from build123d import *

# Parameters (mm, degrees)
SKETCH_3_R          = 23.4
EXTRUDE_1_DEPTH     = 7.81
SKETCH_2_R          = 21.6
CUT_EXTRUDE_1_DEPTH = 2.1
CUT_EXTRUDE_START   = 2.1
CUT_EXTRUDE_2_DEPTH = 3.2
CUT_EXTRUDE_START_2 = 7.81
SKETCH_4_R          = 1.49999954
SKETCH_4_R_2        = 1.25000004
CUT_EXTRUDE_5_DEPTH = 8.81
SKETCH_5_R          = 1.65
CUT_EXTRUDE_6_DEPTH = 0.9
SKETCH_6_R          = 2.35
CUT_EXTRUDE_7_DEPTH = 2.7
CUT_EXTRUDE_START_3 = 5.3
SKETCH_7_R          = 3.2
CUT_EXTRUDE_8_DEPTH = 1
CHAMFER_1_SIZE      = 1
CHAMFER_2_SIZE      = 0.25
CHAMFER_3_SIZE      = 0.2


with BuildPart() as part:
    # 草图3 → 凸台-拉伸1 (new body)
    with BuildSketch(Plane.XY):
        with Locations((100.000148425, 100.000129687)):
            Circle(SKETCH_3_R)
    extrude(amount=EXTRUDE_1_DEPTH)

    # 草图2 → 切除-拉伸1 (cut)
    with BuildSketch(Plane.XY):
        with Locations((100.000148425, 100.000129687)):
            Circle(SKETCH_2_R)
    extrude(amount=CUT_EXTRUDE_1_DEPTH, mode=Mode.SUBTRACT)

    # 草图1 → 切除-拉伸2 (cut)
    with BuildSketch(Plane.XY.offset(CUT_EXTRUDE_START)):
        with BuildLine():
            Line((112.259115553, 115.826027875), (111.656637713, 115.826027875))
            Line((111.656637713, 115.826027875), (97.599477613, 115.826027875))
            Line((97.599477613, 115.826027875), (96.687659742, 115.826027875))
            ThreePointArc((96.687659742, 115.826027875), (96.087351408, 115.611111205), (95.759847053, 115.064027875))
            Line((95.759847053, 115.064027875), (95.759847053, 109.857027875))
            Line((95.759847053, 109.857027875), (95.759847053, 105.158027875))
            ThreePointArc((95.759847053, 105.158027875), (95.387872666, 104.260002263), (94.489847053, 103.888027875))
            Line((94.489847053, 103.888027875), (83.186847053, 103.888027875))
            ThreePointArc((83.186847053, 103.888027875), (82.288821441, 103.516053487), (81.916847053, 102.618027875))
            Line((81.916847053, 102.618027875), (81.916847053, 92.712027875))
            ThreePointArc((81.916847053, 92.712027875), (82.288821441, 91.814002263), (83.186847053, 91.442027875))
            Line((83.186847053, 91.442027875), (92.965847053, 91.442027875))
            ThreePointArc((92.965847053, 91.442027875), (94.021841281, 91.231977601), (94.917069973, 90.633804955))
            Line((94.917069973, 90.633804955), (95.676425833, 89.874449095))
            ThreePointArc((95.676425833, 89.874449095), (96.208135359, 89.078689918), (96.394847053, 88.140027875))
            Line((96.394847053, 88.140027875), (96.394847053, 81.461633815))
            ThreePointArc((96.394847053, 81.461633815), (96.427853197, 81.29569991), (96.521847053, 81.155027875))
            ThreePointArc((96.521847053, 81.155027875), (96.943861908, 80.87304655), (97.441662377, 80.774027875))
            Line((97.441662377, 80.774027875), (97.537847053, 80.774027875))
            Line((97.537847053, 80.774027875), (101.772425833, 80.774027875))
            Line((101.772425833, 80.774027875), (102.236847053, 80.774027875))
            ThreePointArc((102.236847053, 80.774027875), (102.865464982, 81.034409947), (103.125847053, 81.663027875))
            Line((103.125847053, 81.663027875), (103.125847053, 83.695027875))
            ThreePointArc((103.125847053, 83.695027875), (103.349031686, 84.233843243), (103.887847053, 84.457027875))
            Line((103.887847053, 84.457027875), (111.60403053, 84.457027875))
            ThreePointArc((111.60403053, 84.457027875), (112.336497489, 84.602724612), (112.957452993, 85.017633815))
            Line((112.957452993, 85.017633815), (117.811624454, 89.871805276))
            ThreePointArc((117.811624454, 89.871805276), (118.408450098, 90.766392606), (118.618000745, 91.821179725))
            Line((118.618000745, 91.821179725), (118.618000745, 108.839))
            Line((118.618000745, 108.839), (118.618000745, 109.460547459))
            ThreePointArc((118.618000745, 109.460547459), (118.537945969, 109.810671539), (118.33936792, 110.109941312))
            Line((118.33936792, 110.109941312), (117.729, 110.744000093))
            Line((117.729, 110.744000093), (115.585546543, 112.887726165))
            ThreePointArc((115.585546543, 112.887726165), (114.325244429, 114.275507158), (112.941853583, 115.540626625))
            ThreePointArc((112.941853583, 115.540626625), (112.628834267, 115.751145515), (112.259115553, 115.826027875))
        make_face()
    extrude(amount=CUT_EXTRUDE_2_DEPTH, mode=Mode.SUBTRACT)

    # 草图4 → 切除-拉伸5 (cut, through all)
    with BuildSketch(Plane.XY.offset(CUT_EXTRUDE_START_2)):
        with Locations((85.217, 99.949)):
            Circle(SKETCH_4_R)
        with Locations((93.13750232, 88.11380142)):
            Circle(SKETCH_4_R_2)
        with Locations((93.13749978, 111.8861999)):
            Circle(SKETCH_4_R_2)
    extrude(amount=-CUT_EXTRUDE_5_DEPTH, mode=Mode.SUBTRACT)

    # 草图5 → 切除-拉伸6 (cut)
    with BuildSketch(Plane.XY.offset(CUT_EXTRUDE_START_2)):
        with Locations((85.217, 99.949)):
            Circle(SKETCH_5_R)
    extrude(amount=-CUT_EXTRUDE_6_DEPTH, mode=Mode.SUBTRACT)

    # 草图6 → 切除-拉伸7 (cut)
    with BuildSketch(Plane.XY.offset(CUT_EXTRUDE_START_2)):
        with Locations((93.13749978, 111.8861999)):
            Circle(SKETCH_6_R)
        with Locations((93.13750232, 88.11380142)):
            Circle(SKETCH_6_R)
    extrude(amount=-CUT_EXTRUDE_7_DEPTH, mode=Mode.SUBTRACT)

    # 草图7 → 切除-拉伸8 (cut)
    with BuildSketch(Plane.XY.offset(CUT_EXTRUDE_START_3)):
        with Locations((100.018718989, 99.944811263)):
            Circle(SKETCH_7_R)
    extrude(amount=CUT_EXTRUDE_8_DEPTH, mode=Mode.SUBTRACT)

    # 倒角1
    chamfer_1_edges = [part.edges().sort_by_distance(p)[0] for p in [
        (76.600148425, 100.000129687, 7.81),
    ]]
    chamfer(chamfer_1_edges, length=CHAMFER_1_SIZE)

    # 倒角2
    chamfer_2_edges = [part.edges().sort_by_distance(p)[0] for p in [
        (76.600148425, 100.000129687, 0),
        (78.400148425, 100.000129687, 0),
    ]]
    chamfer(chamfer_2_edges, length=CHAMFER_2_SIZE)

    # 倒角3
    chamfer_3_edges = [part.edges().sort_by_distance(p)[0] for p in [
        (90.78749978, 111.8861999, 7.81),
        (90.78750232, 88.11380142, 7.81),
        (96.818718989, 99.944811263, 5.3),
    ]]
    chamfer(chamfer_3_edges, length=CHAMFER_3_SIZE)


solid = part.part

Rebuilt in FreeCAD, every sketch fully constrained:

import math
import FreeCAD as App
import Part
import Sketcher
Q = App.Units.Quantity


def edges_at(feature, points):
    """Names of the edges that pass closest to the given points."""
    edges = feature.Shape.Edges
    near = lambda p: min(range(len(edges)), key=lambda i: edges[i].distToShape(Part.Vertex(*p))[0])
    return sorted({f"Edge{near(p) + 1}" for p in points})

doc = App.newDocument("Part")
body = doc.addObject("PartDesign::Body", "Body")

# Sketch on XY plane
sketch1 = body.newObject("Sketcher::SketchObject", "Sketch")
sketch1.AttachmentSupport = (doc.getObject("XY_Plane"), [""])
sketch1.MapMode = "FlatFace"
sketch1.addGeometry(Part.Circle(App.Vector(100, 100, 0), App.Vector(0, 0, 1), 23), False)
sketch1.addConstraint([
    Sketcher.Constraint("Diameter", 0, Q("46.8 mm")),
    Sketcher.Constraint("DistanceX", -1, 1, 0, 3, Q("100.000148 mm")),
    Sketcher.Constraint("DistanceY", -1, 1, 0, 3, Q("100.00013 mm")),
])
pad1 = body.newObject("PartDesign::Pad", "Pad")
pad1.Profile = sketch1
pad1.Length = 7.81

# Sketch on XY plane
sketch2 = body.newObject("Sketcher::SketchObject", "Sketch001")
sketch2.AttachmentSupport = (doc.getObject("XY_Plane"), [""])
sketch2.MapMode = "FlatFace"
sketch2.addGeometry(Part.Circle(App.Vector(100, 100, 0), App.Vector(0, 0, 1), 22), False)
sketch2.addConstraint([
    Sketcher.Constraint("Diameter", 0, Q("43.2 mm")),
    Sketcher.Constraint("DistanceX", -1, 1, 0, 3, Q("100.000148 mm")),
    Sketcher.Constraint("DistanceY", -1, 1, 0, 3, Q("100.00013 mm")),
])
pocket1 = body.newObject("PartDesign::Pocket", "Pocket")
pocket1.Profile = sketch2
pocket1.Length = 2.1
pocket1.Reversed = True

# Sketch on XY plane
sketch3 = body.newObject("Sketcher::SketchObject", "Sketch002")
sketch3.AttachmentSupport = (doc.getObject("XY_Plane"), [""])
sketch3.MapMode = "FlatFace"
sketch3.AttachmentOffset = App.Placement(App.Vector(0, 0, 2.1), App.Rotation())
sketch3.addGeometry([
    Part.LineSegment(App.Vector(112.26, 115.83, 0), App.Vector(96.69, 115.83, 0)),  # 0
    Part.ArcOfCircle(Part.Circle(App.Vector(96.69, 114.88, 0), App.Vector(0, 0, 1), 0.95), math.radians(90), math.radians(169)),  # 1
    Part.LineSegment(App.Vector(95.76, 115.06, 0), App.Vector(95.76, 105.16, 0)),  # 2
    Part.ArcOfCircle(Part.Circle(App.Vector(94.49, 105.16, 0), App.Vector(0, 0, 1), 1.27), math.radians(-90), math.radians(0)),  # 3
    Part.LineSegment(App.Vector(94.49, 103.89, 0), App.Vector(83.19, 103.89, 0)),  # 4
    Part.ArcOfCircle(Part.Circle(App.Vector(83.19, 102.62, 0), App.Vector(0, 0, 1), 1.27), math.radians(90), math.radians(180)),  # 5
    Part.LineSegment(App.Vector(81.92, 102.62, 0), App.Vector(81.92, 92.71, 0)),  # 6
    Part.ArcOfCircle(Part.Circle(App.Vector(83.19, 92.71, 0), App.Vector(0, 0, 1), 1.27), math.radians(180), math.radians(270)),  # 7
    Part.LineSegment(App.Vector(83.19, 91.44, 0), App.Vector(92.97, 91.44, 0)),  # 8
    Part.ArcOfCircle(Part.Circle(App.Vector(92.97, 88.68, 0), App.Vector(0, 0, 1), 2.76), math.radians(45), math.radians(90)),  # 9
    Part.LineSegment(App.Vector(94.92, 90.63, 0), App.Vector(95.68, 89.87, 0)),  # 10
    Part.ArcOfCircle(Part.Circle(App.Vector(93.94, 88.14, 0), App.Vector(0, 0, 1), 2.45), math.radians(0), math.radians(45)),  # 11
    Part.LineSegment(App.Vector(96.39, 88.14, 0), App.Vector(96.39, 81.46, 0)),  # 12
    Part.ArcOfCircle(Part.Circle(App.Vector(96.83, 81.46, 0), App.Vector(0, 0, 1), 0.43), math.radians(180), math.radians(225)),  # 13
    Part.ArcOfCircle(Part.Circle(App.Vector(97.44, 82.07, 0), App.Vector(0, 0, 1), 1.3), math.radians(-135), math.radians(-90)),  # 14
    Part.LineSegment(App.Vector(97.44, 80.77, 0), App.Vector(102.24, 80.77, 0)),  # 15
    Part.ArcOfCircle(Part.Circle(App.Vector(102.24, 81.66, 0), App.Vector(0, 0, 1), 0.89), math.radians(-90), math.radians(0)),  # 16
    Part.LineSegment(App.Vector(103.13, 81.66, 0), App.Vector(103.13, 83.7, 0)),  # 17
    Part.ArcOfCircle(Part.Circle(App.Vector(103.89, 83.7, 0), App.Vector(0, 0, 1), 0.76), math.radians(90), math.radians(180)),  # 18
    Part.LineSegment(App.Vector(103.89, 84.46, 0), App.Vector(111.6, 84.46, 0)),  # 19
    Part.ArcOfCircle(Part.Circle(App.Vector(111.6, 86.37, 0), App.Vector(0, 0, 1), 1.91), math.radians(-90), math.radians(-45)),  # 20
    Part.LineSegment(App.Vector(112.96, 85.02, 0), App.Vector(117.81, 89.87, 0)),  # 21
    Part.ArcOfCircle(Part.Circle(App.Vector(115.86, 91.82, 0), App.Vector(0, 0, 1), 2.76), math.radians(-45), math.radians(0)),  # 22
    Part.LineSegment(App.Vector(118.62, 91.82, 0), App.Vector(118.62, 109.46, 0)),  # 23
    Part.ArcOfCircle(Part.Circle(App.Vector(117.62, 109.42, 0), App.Vector(0, 0, 1), 1), math.radians(3), math.radians(44)),  # 24
    Part.LineSegment(App.Vector(118.34, 110.11, 0), App.Vector(117.73, 110.74, 0)),  # 25
    Part.LineSegment(App.Vector(117.73, 110.74, 0), App.Vector(115.59, 112.89, 0)),  # 26
    Part.ArcOfCircle(Part.Circle(App.Vector(100, 100, 0), App.Vector(0, 0, 1), 20.22), math.radians(39.59), math.radians(50.21)),  # 27
    Part.ArcOfCircle(Part.Circle(App.Vector(112.26, 114.86, 0), App.Vector(0, 0, 1), 0.97), math.radians(45), math.radians(90)),  # 28
], False)
sketch3.addConstraint([
    Sketcher.Constraint("Tangent", 0, 2, 1, 1),
    Sketcher.Constraint("Coincident", 1, 2, 2, 1),
    Sketcher.Constraint("Tangent", 2, 2, 3, 2),
    Sketcher.Constraint("Tangent", 3, 1, 4, 1),
    Sketcher.Constraint("Tangent", 4, 2, 5, 1),
    Sketcher.Constraint("Tangent", 5, 2, 6, 1),
    Sketcher.Constraint("Tangent", 6, 2, 7, 1),
    Sketcher.Constraint("Tangent", 7, 2, 8, 1),
    Sketcher.Constraint("Tangent", 8, 2, 9, 2),
    Sketcher.Constraint("Tangent", 9, 1, 10, 1),
    Sketcher.Constraint("Tangent", 10, 2, 11, 2),
    Sketcher.Constraint("Tangent", 11, 1, 12, 1),
    Sketcher.Constraint("Tangent", 12, 2, 13, 1),
    Sketcher.Constraint("Tangent", 13, 2, 14, 1),
    Sketcher.Constraint("Tangent", 14, 2, 15, 1),
    Sketcher.Constraint("Tangent", 15, 2, 16, 1),
    Sketcher.Constraint("Tangent", 16, 2, 17, 1),
    Sketcher.Constraint("Tangent", 17, 2, 18, 2),
    Sketcher.Constraint("Tangent", 18, 1, 19, 1),
    Sketcher.Constraint("Tangent", 19, 2, 20, 1),
    Sketcher.Constraint("Tangent", 20, 2, 21, 1),
    Sketcher.Constraint("Coincident", 21, 2, 22, 1),
    Sketcher.Constraint("Tangent", 22, 2, 23, 1),
    Sketcher.Constraint("Coincident", 23, 2, 24, 1),
    Sketcher.Constraint("Tangent", 24, 2, 25, 1),
    Sketcher.Constraint("Coincident", 25, 2, 26, 1),
    Sketcher.Constraint("Coincident", 26, 2, 27, 1),
    Sketcher.Constraint("Coincident", 27, 2, 28, 1),
    Sketcher.Constraint("Coincident", 28, 2, 0, 1),
    Sketcher.Constraint("Horizontal", 0),
    Sketcher.Constraint("Vertical", 2),
    Sketcher.Constraint("Horizontal", 4),
    Sketcher.Constraint("Vertical", 6),
    Sketcher.Constraint("Horizontal", 8),
    Sketcher.Constraint("Vertical", 12),
    Sketcher.Constraint("Horizontal", 15),
    Sketcher.Constraint("Vertical", 17),
    Sketcher.Constraint("Horizontal", 19),
    Sketcher.Constraint("Vertical", 23),
    Sketcher.Constraint("Equal", 3, 5),
    Sketcher.Constraint("Equal", 5, 7),
    Sketcher.Constraint("Equal", 9, 22),
    Sketcher.Constraint("Perpendicular", 10, 21),
    Sketcher.Constraint("Equal", 2, 6),
    Sketcher.Constraint("Angle", 10, Q("-45 deg")),
    Sketcher.Constraint("Radius", 3, Q("1.27 mm")),
    Sketcher.Constraint("Radius", 16, Q("0.889 mm")),
    Sketcher.Constraint("Radius", 18, Q("0.762 mm")),
    Sketcher.Constraint("DistanceX", 4, 2, 4, 1, Q("11.303 mm")),
    Sketcher.Constraint("DistanceX", 8, 1, 8, 2, Q("9.779 mm")),
    Sketcher.Constraint("DistanceY", 2, 2, 2, 1, Q("9.906 mm")),
    Sketcher.Constraint("DistanceY", 17, 1, 17, 2, Q("2.032 mm")),
    Sketcher.Constraint("Radius", 20, Q("1.914028 mm")),
    Sketcher.Constraint("Radius", 24, Q("1.000179 mm")),
    Sketcher.Constraint("Radius", 27, Q("20.223619 mm")),
    Sketcher.Constraint("DistanceX", 7, 3, 16, 3, Q("19.05 mm")),
    Sketcher.Constraint("DistanceX", -1, 1, 22, 2, Q("118.618001 mm")),
    Sketcher.Constraint("DistanceX", -1, 1, 25, 2, Q("117.729 mm")),
    Sketcher.Constraint("DistanceY", -1, 1, 25, 2, Q("110.744 mm")),
    Sketcher.Constraint("Radius", 1, Q("0.945853 mm")),
    Sketcher.Constraint("Radius", 9, Q("2.759446 mm")),
    Sketcher.Constraint("Radius", 11, Q("2.452842 mm")),
    Sketcher.Constraint("Radius", 13, Q("0.433606 mm")),
    Sketcher.Constraint("Radius", 14, Q("1.300815 mm")),
    Sketcher.Constraint("Radius", 28, Q("0.967953 mm")),
    Sketcher.Constraint("DistanceY", 11, 3, 7, 3, Q("4.572001 mm")),
    Sketcher.Constraint("DistanceY", 16, 3, 11, 3, Q("6.476999 mm")),
    Sketcher.Constraint("DistanceY", 3, 3, 0, 2, Q("10.668 mm")),
    Sketcher.Constraint("DistanceX", 12, 2, 13, 2, Q("0.127 mm")),
    Sketcher.Constraint("DistanceX", -1, 1, 24, 3, Q("117.618801 mm")),
    Sketcher.Constraint("DistanceX", 13, 3, 22, 3, Q("19.030102 mm")),
    Sketcher.Constraint("DistanceX", 3, 3, 27, 3, Q("5.510301 mm")),
    Sketcher.Constraint("DistanceY", 27, 3, 3, 3, Q("5.157898 mm")),
    Sketcher.Constraint("DistanceY", 22, 3, 28, 3, Q("23.036902 mm")),
    Sketcher.Constraint("DistanceY", 26, 2, 27, 2, Q("2.6529 mm")),
    Sketcher.Constraint("DistanceY", 27, 2, 28, 2, Q("0.285401 mm")),
    Sketcher.Constraint("DistanceX", 0, 2, 0, 1, Q("15.571456 mm")),
    Sketcher.Constraint("DistanceY", 23, 1, 23, 2, Q("17.639368 mm")),
    Sketcher.Constraint("DistanceY", -1, 1, 22, 3, Q("91.82118 mm")),
    Sketcher.Constraint("DistanceX", 22, 3, 21, 2, Q("1.95307 mm")),
])
pocket2 = body.newObject("PartDesign::Pocket", "Pocket001")
pocket2.Profile = sketch3
pocket2.Length = 3.2
pocket2.Reversed = True

# Sketch on XY plane
sketch4 = body.newObject("Sketcher::SketchObject", "Sketch003")
sketch4.AttachmentSupport = (doc.getObject("XY_Plane"), [""])
sketch4.MapMode = "FlatFace"
sketch4.AttachmentOffset = App.Placement(App.Vector(0, 0, 7.81), App.Rotation())
sketch4.addGeometry([
    Part.Circle(App.Vector(85.2, 99.9, 0), App.Vector(0, 0, 1), 1.5),
    Part.Circle(App.Vector(93.1, 88.1, 0), App.Vector(0, 0, 1), 1.3),
    Part.Circle(App.Vector(93.1, 111.9, 0), App.Vector(0, 0, 1), 1.3),
], False)
sketch4.addConstraint([
    Sketcher.Constraint("Equal", 1, 2),
    Sketcher.Constraint("Diameter", 0, Q("2.999999 mm")),
    Sketcher.Constraint("Diameter", 1, Q("2.5 mm")),
    Sketcher.Constraint("DistanceX", -1, 1, 0, 3, Q("85.217 mm")),
    Sketcher.Constraint("DistanceY", -1, 1, 0, 3, Q("99.949 mm")),
    Sketcher.Constraint("DistanceY", -1, 1, 1, 3, Q("88.113801 mm")),
    Sketcher.Constraint("DistanceX", -1, 1, 2, 3, Q("93.1375 mm")),
    Sketcher.Constraint("DistanceY", -1, 1, 2, 3, Q("111.8862 mm")),
    Sketcher.Constraint("DistanceX", -1, 1, 1, 3, Q("93.137502 mm")),
])
pocket3 = body.newObject("PartDesign::Pocket", "Pocket002")
pocket3.Profile = sketch4
pocket3.Type = "ThroughAll"

# Sketch on XY plane
sketch5 = body.newObject("Sketcher::SketchObject", "Sketch004")
sketch5.AttachmentSupport = (doc.getObject("XY_Plane"), [""])
sketch5.MapMode = "FlatFace"
sketch5.AttachmentOffset = App.Placement(App.Vector(0, 0, 7.81), App.Rotation())
sketch5.addGeometry(Part.Circle(App.Vector(85.2, 99.9, 0), App.Vector(0, 0, 1), 1.6), False)
sketch5.addConstraint([
    Sketcher.Constraint("Diameter", 0, Q("3.3 mm")),
    Sketcher.Constraint("DistanceX", -1, 1, 0, 3, Q("85.217 mm")),
    Sketcher.Constraint("DistanceY", -1, 1, 0, 3, Q("99.949 mm")),
])
pocket4 = body.newObject("PartDesign::Pocket", "Pocket003")
pocket4.Profile = sketch5
pocket4.Length = 0.9

# Sketch on XY plane
sketch6 = body.newObject("Sketcher::SketchObject", "Sketch005")
sketch6.AttachmentSupport = (doc.getObject("XY_Plane"), [""])
sketch6.MapMode = "FlatFace"
sketch6.AttachmentOffset = App.Placement(App.Vector(0, 0, 7.81), App.Rotation())
sketch6.addGeometry([
    Part.Circle(App.Vector(93.1, 111.9, 0), App.Vector(0, 0, 1), 2.4),
    Part.Circle(App.Vector(93.1, 88.1, 0), App.Vector(0, 0, 1), 2.4),
], False)
sketch6.addConstraint([
    Sketcher.Constraint("Equal", 0, 1),
    Sketcher.Constraint("Diameter", 0, Q("4.7 mm")),
    Sketcher.Constraint("DistanceX", -1, 1, 0, 3, Q("93.1375 mm")),
    Sketcher.Constraint("DistanceY", -1, 1, 0, 3, Q("111.8862 mm")),
    Sketcher.Constraint("DistanceY", -1, 1, 1, 3, Q("88.113801 mm")),
    Sketcher.Constraint("DistanceX", -1, 1, 1, 3, Q("93.137502 mm")),
])
pocket5 = body.newObject("PartDesign::Pocket", "Pocket004")
pocket5.Profile = sketch6
pocket5.Length = 2.7

# Sketch on XY plane
sketch7 = body.newObject("Sketcher::SketchObject", "Sketch006")
sketch7.AttachmentSupport = (doc.getObject("XY_Plane"), [""])
sketch7.MapMode = "FlatFace"
sketch7.AttachmentOffset = App.Placement(App.Vector(0, 0, 5.3), App.Rotation())
sketch7.addGeometry(Part.Circle(App.Vector(100, 99.9, 0), App.Vector(0, 0, 1), 3.2), False)
sketch7.addConstraint([
    Sketcher.Constraint("Diameter", 0, Q("6.4 mm")),
    Sketcher.Constraint("DistanceX", -1, 1, 0, 3, Q("100.018719 mm")),
    Sketcher.Constraint("DistanceY", -1, 1, 0, 3, Q("99.944811 mm")),
])
pocket6 = body.newObject("PartDesign::Pocket", "Pocket005")
pocket6.Profile = sketch7
pocket6.Length = 1
pocket6.Reversed = True
doc.recompute()

chamfer = body.newObject("PartDesign::Chamfer", "Chamfer")
chamfer.Base = (pocket6, edges_at(pocket6, [(76.6, 100, 7.81)]))
chamfer.Size = 1
doc.recompute()

chamfer2 = body.newObject("PartDesign::Chamfer", "Chamfer001")
chamfer2.Base = (chamfer, edges_at(chamfer, [(76.6, 100, 0), (78.4, 100, 0)]))
chamfer2.Size = 0.25
doc.recompute()

chamfer3 = body.newObject("PartDesign::Chamfer", "Chamfer002")
chamfer3.Base = (chamfer2, edges_at(chamfer2, [(90.787, 111.886, 7.81), (90.788, 88.114, 7.81), (96.819, 99.945, 5.3)]))
chamfer3.Size = 0.2

doc.recompute()
